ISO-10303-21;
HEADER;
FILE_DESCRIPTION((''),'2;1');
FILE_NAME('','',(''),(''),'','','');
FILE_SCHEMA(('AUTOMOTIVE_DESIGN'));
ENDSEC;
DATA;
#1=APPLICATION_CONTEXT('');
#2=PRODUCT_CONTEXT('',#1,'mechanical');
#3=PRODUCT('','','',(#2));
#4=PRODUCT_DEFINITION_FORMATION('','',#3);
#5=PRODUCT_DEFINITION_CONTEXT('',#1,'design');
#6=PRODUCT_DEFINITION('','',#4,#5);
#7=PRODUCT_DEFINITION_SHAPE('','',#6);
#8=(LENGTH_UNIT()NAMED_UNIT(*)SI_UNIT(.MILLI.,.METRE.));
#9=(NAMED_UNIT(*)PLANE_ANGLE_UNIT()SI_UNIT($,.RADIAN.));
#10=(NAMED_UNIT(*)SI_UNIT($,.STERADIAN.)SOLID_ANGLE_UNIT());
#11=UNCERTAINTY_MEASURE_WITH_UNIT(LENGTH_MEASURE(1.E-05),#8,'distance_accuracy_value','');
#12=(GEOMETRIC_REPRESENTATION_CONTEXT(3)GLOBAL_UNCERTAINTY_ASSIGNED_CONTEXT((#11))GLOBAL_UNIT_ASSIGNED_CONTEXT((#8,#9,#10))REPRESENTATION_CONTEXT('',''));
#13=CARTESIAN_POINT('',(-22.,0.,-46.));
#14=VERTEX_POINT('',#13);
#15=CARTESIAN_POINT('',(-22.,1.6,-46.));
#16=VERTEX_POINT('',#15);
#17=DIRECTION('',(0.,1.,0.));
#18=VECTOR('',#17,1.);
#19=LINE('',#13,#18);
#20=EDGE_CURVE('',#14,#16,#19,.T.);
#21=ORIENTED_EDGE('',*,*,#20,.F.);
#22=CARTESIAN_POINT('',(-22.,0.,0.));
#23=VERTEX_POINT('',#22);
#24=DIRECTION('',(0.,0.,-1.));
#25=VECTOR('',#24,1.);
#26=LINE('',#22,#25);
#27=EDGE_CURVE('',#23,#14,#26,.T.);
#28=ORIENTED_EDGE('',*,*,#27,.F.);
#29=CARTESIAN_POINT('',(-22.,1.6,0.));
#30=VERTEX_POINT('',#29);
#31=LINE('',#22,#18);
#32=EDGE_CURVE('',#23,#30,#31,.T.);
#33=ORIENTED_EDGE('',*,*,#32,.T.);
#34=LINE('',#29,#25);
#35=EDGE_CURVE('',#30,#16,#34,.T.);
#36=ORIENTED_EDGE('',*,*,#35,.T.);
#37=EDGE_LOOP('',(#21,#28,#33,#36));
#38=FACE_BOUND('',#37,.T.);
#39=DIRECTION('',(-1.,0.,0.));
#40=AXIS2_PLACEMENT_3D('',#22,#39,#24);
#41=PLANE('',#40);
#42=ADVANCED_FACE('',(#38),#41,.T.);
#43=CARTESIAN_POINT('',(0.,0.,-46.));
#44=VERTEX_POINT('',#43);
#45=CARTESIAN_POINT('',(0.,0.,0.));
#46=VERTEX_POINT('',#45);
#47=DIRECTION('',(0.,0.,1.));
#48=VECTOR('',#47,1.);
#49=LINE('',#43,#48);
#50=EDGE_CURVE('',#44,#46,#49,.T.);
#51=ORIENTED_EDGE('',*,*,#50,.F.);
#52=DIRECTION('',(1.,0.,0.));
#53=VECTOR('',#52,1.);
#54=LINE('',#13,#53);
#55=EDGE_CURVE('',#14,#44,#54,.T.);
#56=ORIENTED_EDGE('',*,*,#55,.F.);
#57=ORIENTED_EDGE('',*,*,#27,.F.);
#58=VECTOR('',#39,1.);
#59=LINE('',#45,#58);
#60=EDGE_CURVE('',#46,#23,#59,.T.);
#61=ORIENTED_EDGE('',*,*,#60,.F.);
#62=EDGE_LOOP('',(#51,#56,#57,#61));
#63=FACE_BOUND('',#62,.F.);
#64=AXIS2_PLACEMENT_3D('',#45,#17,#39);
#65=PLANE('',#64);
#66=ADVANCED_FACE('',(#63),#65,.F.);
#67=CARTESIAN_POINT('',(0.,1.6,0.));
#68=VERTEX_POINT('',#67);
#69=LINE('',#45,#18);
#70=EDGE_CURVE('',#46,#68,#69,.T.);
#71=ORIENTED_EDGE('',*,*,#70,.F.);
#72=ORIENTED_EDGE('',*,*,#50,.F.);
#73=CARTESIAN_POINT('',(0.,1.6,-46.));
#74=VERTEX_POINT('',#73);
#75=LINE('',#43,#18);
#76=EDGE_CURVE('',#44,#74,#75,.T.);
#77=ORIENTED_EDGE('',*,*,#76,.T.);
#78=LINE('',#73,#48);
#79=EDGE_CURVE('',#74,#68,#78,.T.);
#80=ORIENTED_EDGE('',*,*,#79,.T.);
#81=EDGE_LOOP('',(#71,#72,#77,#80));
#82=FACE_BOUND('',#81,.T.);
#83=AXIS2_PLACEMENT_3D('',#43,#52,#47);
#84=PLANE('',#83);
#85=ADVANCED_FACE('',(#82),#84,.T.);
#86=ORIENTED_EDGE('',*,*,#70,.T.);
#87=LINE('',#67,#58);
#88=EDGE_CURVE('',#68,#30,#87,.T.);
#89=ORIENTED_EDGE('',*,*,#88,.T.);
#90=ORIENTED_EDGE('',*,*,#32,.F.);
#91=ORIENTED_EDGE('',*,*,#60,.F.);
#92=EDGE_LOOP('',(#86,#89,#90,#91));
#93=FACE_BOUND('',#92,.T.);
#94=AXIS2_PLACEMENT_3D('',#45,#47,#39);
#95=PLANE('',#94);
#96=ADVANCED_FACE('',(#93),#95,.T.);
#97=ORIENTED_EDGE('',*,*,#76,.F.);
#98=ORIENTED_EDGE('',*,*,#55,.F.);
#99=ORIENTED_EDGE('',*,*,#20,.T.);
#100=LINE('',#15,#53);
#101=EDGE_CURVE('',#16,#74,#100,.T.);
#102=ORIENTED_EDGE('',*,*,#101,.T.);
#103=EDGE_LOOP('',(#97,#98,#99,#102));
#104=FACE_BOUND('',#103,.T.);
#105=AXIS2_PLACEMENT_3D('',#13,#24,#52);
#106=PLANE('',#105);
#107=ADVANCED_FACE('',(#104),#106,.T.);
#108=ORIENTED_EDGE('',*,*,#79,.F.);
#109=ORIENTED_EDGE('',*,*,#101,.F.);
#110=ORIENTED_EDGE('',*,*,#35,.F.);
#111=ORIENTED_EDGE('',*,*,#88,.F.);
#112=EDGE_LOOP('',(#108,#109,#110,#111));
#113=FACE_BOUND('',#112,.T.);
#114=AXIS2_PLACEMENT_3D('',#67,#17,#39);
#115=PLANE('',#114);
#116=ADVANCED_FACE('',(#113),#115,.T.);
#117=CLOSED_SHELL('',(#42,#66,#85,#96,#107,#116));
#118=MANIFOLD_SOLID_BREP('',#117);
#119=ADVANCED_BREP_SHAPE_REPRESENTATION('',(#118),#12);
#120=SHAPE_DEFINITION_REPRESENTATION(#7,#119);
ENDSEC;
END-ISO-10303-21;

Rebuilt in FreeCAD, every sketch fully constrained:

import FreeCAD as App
import Part
import Sketcher


def add_polygon(sketch, points):
    """Adds a closed chain of lines whose ends are joined by coincident constraints."""
    first, n = sketch.GeometryCount, len(points)
    for a, b in zip(points, points[1:] + points[:1]):
        sketch.addGeometry(Part.LineSegment(App.Vector(*a, 0), App.Vector(*b, 0)), False)
    for i in range(n):
        sketch.addConstraint(Sketcher.Constraint("Coincident", first + i, 2, first + (i + 1) % n, 1))

doc = App.newDocument("Part")
body = doc.addObject("PartDesign::Body", "Body")

# Sketch on XZ plane
sketch1 = body.newObject("Sketcher::SketchObject", "Sketch")
sketch1.AttachmentSupport = (doc.getObject("XZ_Plane"), [""])
sketch1.MapMode = "FlatFace"
add_polygon(sketch1, [(-22, 0), (0, 0), (0, -46), (-22, -46)])  # lines 0-3
sketch1.addConstraint([
    Sketcher.Constraint("Horizontal", 0),
    Sketcher.Constraint("Vertical", 1),
    Sketcher.Constraint("Horizontal", 2),
    Sketcher.Constraint("Vertical", 3),
    Sketcher.Constraint("Coincident", 0, 2, -1, 1),
    Sketcher.Constraint("DistanceX", 0, 1, 0, 2, 22.0),
    Sketcher.Constraint("DistanceY", 1, 2, 1, 1, 46.0),
])
pad1 = body.newObject("PartDesign::Pad", "Pad")
pad1.Profile = sketch1
pad1.Length = 1.6
pad1.Reversed = True

doc.recompute()
